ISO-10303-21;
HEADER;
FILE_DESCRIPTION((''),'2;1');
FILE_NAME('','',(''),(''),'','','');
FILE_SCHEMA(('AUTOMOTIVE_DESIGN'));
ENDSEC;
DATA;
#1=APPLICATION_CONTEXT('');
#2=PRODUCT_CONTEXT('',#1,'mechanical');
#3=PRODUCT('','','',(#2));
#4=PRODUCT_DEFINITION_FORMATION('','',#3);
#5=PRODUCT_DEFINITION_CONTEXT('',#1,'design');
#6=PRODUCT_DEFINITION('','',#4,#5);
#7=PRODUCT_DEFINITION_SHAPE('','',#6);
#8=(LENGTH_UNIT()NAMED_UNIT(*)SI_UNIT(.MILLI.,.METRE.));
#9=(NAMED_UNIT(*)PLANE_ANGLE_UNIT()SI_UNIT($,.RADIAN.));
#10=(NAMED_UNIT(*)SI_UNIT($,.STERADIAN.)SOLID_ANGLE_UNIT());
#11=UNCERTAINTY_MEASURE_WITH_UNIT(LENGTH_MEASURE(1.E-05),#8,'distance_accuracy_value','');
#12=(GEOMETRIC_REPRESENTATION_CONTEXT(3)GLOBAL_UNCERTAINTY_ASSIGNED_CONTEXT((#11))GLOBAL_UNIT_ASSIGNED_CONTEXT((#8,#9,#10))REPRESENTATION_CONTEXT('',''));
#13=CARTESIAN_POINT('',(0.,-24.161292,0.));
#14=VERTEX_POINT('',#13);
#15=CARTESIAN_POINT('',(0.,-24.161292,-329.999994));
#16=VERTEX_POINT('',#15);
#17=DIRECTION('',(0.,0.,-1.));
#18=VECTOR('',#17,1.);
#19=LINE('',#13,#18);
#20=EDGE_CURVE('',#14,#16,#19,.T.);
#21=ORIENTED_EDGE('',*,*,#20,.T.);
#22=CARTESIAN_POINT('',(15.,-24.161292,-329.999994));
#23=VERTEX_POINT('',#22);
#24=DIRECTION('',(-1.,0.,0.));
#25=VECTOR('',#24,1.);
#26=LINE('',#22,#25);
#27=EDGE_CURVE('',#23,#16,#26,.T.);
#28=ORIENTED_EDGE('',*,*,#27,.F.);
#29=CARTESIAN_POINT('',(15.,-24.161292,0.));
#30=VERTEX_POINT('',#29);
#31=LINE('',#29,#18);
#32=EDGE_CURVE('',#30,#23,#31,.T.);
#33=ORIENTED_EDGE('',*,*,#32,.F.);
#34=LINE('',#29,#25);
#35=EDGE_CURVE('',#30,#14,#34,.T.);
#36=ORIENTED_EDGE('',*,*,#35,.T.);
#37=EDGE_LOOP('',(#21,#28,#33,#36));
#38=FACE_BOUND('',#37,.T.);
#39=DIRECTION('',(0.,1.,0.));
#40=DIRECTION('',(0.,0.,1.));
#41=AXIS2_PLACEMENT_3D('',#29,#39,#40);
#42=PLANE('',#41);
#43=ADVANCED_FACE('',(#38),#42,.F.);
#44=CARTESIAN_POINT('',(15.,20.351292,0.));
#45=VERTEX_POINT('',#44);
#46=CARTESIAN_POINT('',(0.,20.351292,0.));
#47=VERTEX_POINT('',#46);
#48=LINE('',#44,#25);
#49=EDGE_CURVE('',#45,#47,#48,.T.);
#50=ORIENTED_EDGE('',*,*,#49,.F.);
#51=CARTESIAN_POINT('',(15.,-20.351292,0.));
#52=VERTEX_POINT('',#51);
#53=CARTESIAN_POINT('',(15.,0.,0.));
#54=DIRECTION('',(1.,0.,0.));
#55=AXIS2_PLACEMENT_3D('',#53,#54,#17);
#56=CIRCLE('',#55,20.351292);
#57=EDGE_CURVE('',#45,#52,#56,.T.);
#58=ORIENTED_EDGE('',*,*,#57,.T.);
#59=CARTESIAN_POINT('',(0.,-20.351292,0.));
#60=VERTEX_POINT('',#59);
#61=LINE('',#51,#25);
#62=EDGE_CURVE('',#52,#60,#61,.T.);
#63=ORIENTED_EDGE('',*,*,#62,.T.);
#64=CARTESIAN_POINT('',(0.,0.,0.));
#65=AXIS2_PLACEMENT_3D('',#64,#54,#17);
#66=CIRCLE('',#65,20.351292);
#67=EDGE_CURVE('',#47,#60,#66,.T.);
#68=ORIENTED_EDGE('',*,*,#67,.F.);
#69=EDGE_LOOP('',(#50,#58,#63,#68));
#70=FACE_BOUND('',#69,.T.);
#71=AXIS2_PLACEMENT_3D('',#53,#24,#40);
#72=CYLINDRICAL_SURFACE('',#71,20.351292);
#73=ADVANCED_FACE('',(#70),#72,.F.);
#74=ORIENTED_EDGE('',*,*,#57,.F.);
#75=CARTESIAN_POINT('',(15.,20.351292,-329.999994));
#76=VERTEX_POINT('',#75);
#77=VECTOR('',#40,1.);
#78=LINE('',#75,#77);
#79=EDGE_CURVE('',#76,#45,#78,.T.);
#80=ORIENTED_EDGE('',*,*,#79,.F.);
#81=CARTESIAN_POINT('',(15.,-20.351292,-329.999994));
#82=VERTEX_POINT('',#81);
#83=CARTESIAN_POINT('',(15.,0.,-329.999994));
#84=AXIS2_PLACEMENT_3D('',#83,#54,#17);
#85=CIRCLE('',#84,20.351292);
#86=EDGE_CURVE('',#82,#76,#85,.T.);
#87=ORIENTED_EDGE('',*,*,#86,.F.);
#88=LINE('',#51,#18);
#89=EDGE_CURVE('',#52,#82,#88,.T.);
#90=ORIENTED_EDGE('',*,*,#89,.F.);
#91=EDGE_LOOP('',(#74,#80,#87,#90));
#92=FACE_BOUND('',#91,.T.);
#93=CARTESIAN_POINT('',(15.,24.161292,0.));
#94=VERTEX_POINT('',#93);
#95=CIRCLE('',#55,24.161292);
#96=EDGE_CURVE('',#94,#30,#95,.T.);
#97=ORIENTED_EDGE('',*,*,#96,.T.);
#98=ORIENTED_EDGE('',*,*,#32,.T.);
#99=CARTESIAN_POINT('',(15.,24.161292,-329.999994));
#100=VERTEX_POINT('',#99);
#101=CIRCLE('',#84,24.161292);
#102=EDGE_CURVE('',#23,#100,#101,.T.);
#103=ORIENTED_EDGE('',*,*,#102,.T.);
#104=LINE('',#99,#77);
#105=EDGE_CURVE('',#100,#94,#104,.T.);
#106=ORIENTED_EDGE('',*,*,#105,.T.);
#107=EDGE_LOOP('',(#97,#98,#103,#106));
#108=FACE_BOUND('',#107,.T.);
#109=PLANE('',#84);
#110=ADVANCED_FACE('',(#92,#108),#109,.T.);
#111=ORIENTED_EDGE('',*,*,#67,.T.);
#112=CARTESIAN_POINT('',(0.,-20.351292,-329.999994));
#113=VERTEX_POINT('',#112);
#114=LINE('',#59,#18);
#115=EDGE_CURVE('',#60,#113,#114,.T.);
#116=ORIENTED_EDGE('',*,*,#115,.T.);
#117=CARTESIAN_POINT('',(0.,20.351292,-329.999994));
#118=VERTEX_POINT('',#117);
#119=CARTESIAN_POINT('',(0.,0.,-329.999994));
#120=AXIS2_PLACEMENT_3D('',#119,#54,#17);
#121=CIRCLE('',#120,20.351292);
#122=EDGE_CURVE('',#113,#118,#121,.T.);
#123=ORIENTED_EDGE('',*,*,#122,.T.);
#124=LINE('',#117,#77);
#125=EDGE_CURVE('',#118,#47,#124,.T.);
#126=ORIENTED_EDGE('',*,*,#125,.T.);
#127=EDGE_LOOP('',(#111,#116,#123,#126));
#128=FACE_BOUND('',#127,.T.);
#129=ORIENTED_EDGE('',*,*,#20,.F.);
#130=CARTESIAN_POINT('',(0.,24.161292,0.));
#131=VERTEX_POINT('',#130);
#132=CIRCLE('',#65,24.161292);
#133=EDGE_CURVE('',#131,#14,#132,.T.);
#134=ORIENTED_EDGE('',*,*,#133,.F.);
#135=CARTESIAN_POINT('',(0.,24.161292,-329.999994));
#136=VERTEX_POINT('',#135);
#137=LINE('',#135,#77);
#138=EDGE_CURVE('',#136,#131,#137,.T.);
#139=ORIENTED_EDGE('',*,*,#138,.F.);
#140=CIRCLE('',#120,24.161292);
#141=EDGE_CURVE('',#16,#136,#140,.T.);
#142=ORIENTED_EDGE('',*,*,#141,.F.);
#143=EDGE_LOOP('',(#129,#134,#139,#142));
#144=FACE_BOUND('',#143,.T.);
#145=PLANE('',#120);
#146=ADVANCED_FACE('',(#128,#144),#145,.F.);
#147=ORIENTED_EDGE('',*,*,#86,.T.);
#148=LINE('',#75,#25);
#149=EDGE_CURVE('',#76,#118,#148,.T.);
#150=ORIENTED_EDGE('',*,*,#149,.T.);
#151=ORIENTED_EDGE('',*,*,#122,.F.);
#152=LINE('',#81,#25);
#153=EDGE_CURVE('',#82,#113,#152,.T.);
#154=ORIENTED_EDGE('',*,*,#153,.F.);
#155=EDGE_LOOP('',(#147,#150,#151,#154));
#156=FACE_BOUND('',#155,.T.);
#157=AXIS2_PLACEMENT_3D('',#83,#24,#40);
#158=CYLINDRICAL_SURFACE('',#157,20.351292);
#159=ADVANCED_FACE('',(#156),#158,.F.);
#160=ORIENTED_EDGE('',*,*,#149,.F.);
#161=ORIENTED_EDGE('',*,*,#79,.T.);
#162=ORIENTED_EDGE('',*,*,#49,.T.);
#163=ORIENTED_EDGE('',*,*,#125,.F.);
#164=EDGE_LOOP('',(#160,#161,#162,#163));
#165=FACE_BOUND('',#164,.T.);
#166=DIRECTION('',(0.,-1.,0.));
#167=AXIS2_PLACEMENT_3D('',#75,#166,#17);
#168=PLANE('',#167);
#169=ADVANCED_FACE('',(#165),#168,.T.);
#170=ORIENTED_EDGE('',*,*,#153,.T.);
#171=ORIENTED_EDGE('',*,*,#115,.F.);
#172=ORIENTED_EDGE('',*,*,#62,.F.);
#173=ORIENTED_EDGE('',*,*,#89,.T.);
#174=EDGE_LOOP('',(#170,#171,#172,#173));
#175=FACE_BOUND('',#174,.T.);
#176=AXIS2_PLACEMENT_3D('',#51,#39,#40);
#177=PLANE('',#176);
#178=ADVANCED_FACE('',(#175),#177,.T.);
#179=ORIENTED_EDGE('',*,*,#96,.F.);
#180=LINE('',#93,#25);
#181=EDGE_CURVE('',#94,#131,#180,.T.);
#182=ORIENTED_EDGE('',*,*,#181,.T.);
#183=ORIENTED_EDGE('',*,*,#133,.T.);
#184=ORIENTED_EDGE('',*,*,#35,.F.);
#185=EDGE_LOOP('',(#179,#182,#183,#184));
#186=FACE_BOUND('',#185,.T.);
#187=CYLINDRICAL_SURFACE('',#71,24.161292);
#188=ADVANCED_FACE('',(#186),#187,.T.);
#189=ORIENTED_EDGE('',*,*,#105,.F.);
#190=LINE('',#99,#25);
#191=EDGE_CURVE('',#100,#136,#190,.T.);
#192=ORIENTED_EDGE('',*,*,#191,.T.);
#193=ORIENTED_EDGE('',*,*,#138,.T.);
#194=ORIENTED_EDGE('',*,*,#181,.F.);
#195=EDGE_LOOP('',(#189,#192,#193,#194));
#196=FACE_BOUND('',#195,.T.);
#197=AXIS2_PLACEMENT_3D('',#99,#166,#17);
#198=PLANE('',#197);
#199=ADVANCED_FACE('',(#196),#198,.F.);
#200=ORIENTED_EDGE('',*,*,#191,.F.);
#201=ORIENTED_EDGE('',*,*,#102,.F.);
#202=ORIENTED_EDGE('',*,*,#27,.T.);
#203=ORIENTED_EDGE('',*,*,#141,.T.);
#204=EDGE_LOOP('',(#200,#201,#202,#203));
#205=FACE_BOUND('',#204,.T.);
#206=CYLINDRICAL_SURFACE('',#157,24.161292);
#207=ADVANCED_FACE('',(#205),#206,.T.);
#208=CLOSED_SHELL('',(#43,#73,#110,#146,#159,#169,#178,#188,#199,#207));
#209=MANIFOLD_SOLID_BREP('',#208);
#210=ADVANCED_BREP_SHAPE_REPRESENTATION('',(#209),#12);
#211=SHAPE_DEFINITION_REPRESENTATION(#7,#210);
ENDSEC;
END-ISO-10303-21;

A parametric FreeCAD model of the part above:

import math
import FreeCAD as App
import Part
import Sketcher
from FreeCAD import Vector
Q = App.Units.Quantity

doc = App.newDocument("Part")
body = doc.addObject("PartDesign::Body", "Body")

# Sketch on YZ plane
sketch1 = body.newObject("Sketcher::SketchObject", "Sketch")
sketch1.AttachmentSupport = (doc.getObject("YZ_Plane"), [""])
sketch1.MapMode = "FlatFace"
sketch1.addGeometry([
    Part.LineSegment(Vector(24, -330, 0), Vector(24, 0, 0)),  # 0
    Part.ArcOfCircle(Part.Circle(Vector(0, 0, 0), Vector(0, 0, 1), 24), math.radians(0), math.radians(180)),  # 1
    Part.LineSegment(Vector(-24, 0, 0), Vector(-24, -330, 0)),  # 2
    Part.ArcOfCircle(Part.Circle(Vector(0, -330, 0), Vector(0, 0, 1), 24), math.radians(180), math.radians(360)),  # 3
    Part.LineSegment(Vector(20, 0, 0), Vector(20, -330, 0)),  # 4
    Part.ArcOfCircle(Part.Circle(Vector(0, -330, 0), Vector(0, 0, 1), 20), math.radians(180), math.radians(360)),  # 5
    Part.LineSegment(Vector(-20, -330, 0), Vector(-20, 0, 0)),  # 6
    Part.ArcOfCircle(Part.Circle(Vector(0, 0, 0), Vector(0, 0, 1), 20), math.radians(0), math.radians(180)),  # 7
], False)
sketch1.addConstraint([
    Sketcher.Constraint("Tangent", 0, 2, 1, 1),
    Sketcher.Constraint("Tangent", 1, 2, 2, 1),
    Sketcher.Constraint("Tangent", 2, 2, 3, 1),
    Sketcher.Constraint("Tangent", 3, 2, 0, 1),
    Sketcher.Constraint("Tangent", 4, 2, 5, 2),
    Sketcher.Constraint("Tangent", 5, 1, 6, 1),
    Sketcher.Constraint("Tangent", 6, 2, 7, 2),
    Sketcher.Constraint("Tangent", 7, 1, 4, 1),
    Sketcher.Constraint("Vertical", 0),
    Sketcher.Constraint("Vertical", 2),
    Sketcher.Constraint("Vertical", 4),
    Sketcher.Constraint("Vertical", 6),
    Sketcher.Constraint("Coincident", 1, 3, -1, 1),
    Sketcher.Constraint("Coincident", 7, 3, -1, 1),
    Sketcher.Constraint("Horizontal", 5, 3, 2, 2),
    Sketcher.Constraint("Radius", 1, Q("24.161292 mm")),
    Sketcher.Constraint("Radius", 5, Q("20.351292 mm")),
    Sketcher.Constraint("DistanceY", 0, 1, 0, 2, Q("329.999994 mm")),
])
pad1 = body.newObject("PartDesign::Pad", "Pad")
pad1.Profile = sketch1
pad1.Length = 15

doc.recompute()
